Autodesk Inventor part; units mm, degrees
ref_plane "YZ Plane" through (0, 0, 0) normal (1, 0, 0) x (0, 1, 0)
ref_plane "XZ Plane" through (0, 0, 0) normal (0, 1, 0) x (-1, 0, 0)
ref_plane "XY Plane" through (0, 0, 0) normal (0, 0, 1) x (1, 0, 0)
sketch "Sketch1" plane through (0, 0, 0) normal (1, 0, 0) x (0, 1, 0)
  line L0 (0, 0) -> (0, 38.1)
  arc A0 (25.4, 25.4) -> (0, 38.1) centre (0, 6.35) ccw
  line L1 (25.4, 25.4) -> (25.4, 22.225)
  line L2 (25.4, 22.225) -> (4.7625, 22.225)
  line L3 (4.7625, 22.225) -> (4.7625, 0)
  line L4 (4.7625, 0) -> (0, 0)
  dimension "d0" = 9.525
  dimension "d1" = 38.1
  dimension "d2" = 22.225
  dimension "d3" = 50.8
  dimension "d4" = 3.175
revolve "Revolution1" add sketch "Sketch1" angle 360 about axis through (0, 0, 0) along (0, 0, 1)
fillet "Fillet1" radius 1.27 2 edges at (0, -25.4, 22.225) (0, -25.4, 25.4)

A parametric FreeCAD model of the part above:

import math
import FreeCAD as App
import Part
import Sketcher
Q = App.Units.Quantity


def edges_at(feature, points):
    """Names of the edges that pass closest to the given points."""
    edges = feature.Shape.Edges
    near = lambda p: min(range(len(edges)), key=lambda i: edges[i].distToShape(Part.Vertex(*p))[0])
    return sorted({f"Edge{near(p) + 1}" for p in points})

doc = App.newDocument("Part")
body = doc.addObject("PartDesign::Body", "Body")

# Sketch on YZ plane
sketch1 = body.newObject("Sketcher::SketchObject", "Sketch")
sketch1.AttachmentSupport = (doc.getObject("YZ_Plane"), [""])
sketch1.MapMode = "FlatFace"
sketch1.addGeometry(Part.LineSegment(App.Vector(0, 38.1, 0), App.Vector(0, 0, 0)), False)
sketch1.addGeometry(Part.LineSegment(App.Vector(0, 0, 0), App.Vector(4.8, 0, 0)), False)
sketch1.addGeometry(Part.LineSegment(App.Vector(4.8, 0, 0), App.Vector(4.8, 22.2, 0)), False)
sketch1.addGeometry(Part.LineSegment(App.Vector(4.8, 22.2, 0), App.Vector(25.4, 22.2, 0)), False)
sketch1.addGeometry(Part.LineSegment(App.Vector(25.4, 22.2, 0), App.Vector(25.4, 25.4, 0)), False)
sketch1.addGeometry(Part.ArcOfCircle(Part.Circle(App.Vector(0, 6.3, 0), App.Vector(0, 0, 1), 31.7), math.radians(37), math.radians(90)), False)
sketch1.addConstraint(Sketcher.Constraint("Coincident", 0, 2, 1, 1))
sketch1.addConstraint(Sketcher.Constraint("Coincident", 1, 2, 2, 1))
sketch1.addConstraint(Sketcher.Constraint("Coincident", 2, 2, 3, 1))
sketch1.addConstraint(Sketcher.Constraint("Coincident", 3, 2, 4, 1))
sketch1.addConstraint(Sketcher.Constraint("Coincident", 4, 2, 5, 1))
sketch1.addConstraint(Sketcher.Constraint("Coincident", 5, 2, 0, 1))
sketch1.addConstraint(Sketcher.Constraint("Vertical", 0))
sketch1.addConstraint(Sketcher.Constraint("Horizontal", 1))
sketch1.addConstraint(Sketcher.Constraint("Vertical", 2))
sketch1.addConstraint(Sketcher.Constraint("Horizontal", 3))
sketch1.addConstraint(Sketcher.Constraint("Vertical", 4))
sketch1.addConstraint(Sketcher.Constraint("Coincident", 0, 2, -1, 1))
sketch1.addConstraint(Sketcher.Constraint("PointOnObject", 5, 3, -2))
sketch1.addConstraint(Sketcher.Constraint("DistanceY", 0, 2, 0, 1, Q("1.5 in")))
sketch1.addConstraint(Sketcher.Constraint("DistanceY", 2, 1, 2, 2, Q("0.875 in")))
sketch1.addConstraint(Sketcher.Constraint("DistanceY", 4, 1, 4, 2, Q("0.125 in")))
sketch1.addConstraint(Sketcher.Constraint("Radius", 5, Q("1.25 in")))
sketch1.addConstraint(Sketcher.Constraint("DistanceX", 1, 1, 1, 2, Q("0.1875 in")))
revolution = body.newObject("PartDesign::Revolution", "Revolution")
revolution.Profile = sketch1
revolution.ReferenceAxis = (sketch1, ["V_Axis"])
revolution.Angle = 360
doc.recompute()

fillet = body.newObject("PartDesign::Fillet", "Fillet")
fillet.Base = (revolution, edges_at(revolution, [(0, -25.4, 22.225), (0, -25.4, 25.4)]))
fillet.Radius = Q("0.05 in")

doc.recompute()
